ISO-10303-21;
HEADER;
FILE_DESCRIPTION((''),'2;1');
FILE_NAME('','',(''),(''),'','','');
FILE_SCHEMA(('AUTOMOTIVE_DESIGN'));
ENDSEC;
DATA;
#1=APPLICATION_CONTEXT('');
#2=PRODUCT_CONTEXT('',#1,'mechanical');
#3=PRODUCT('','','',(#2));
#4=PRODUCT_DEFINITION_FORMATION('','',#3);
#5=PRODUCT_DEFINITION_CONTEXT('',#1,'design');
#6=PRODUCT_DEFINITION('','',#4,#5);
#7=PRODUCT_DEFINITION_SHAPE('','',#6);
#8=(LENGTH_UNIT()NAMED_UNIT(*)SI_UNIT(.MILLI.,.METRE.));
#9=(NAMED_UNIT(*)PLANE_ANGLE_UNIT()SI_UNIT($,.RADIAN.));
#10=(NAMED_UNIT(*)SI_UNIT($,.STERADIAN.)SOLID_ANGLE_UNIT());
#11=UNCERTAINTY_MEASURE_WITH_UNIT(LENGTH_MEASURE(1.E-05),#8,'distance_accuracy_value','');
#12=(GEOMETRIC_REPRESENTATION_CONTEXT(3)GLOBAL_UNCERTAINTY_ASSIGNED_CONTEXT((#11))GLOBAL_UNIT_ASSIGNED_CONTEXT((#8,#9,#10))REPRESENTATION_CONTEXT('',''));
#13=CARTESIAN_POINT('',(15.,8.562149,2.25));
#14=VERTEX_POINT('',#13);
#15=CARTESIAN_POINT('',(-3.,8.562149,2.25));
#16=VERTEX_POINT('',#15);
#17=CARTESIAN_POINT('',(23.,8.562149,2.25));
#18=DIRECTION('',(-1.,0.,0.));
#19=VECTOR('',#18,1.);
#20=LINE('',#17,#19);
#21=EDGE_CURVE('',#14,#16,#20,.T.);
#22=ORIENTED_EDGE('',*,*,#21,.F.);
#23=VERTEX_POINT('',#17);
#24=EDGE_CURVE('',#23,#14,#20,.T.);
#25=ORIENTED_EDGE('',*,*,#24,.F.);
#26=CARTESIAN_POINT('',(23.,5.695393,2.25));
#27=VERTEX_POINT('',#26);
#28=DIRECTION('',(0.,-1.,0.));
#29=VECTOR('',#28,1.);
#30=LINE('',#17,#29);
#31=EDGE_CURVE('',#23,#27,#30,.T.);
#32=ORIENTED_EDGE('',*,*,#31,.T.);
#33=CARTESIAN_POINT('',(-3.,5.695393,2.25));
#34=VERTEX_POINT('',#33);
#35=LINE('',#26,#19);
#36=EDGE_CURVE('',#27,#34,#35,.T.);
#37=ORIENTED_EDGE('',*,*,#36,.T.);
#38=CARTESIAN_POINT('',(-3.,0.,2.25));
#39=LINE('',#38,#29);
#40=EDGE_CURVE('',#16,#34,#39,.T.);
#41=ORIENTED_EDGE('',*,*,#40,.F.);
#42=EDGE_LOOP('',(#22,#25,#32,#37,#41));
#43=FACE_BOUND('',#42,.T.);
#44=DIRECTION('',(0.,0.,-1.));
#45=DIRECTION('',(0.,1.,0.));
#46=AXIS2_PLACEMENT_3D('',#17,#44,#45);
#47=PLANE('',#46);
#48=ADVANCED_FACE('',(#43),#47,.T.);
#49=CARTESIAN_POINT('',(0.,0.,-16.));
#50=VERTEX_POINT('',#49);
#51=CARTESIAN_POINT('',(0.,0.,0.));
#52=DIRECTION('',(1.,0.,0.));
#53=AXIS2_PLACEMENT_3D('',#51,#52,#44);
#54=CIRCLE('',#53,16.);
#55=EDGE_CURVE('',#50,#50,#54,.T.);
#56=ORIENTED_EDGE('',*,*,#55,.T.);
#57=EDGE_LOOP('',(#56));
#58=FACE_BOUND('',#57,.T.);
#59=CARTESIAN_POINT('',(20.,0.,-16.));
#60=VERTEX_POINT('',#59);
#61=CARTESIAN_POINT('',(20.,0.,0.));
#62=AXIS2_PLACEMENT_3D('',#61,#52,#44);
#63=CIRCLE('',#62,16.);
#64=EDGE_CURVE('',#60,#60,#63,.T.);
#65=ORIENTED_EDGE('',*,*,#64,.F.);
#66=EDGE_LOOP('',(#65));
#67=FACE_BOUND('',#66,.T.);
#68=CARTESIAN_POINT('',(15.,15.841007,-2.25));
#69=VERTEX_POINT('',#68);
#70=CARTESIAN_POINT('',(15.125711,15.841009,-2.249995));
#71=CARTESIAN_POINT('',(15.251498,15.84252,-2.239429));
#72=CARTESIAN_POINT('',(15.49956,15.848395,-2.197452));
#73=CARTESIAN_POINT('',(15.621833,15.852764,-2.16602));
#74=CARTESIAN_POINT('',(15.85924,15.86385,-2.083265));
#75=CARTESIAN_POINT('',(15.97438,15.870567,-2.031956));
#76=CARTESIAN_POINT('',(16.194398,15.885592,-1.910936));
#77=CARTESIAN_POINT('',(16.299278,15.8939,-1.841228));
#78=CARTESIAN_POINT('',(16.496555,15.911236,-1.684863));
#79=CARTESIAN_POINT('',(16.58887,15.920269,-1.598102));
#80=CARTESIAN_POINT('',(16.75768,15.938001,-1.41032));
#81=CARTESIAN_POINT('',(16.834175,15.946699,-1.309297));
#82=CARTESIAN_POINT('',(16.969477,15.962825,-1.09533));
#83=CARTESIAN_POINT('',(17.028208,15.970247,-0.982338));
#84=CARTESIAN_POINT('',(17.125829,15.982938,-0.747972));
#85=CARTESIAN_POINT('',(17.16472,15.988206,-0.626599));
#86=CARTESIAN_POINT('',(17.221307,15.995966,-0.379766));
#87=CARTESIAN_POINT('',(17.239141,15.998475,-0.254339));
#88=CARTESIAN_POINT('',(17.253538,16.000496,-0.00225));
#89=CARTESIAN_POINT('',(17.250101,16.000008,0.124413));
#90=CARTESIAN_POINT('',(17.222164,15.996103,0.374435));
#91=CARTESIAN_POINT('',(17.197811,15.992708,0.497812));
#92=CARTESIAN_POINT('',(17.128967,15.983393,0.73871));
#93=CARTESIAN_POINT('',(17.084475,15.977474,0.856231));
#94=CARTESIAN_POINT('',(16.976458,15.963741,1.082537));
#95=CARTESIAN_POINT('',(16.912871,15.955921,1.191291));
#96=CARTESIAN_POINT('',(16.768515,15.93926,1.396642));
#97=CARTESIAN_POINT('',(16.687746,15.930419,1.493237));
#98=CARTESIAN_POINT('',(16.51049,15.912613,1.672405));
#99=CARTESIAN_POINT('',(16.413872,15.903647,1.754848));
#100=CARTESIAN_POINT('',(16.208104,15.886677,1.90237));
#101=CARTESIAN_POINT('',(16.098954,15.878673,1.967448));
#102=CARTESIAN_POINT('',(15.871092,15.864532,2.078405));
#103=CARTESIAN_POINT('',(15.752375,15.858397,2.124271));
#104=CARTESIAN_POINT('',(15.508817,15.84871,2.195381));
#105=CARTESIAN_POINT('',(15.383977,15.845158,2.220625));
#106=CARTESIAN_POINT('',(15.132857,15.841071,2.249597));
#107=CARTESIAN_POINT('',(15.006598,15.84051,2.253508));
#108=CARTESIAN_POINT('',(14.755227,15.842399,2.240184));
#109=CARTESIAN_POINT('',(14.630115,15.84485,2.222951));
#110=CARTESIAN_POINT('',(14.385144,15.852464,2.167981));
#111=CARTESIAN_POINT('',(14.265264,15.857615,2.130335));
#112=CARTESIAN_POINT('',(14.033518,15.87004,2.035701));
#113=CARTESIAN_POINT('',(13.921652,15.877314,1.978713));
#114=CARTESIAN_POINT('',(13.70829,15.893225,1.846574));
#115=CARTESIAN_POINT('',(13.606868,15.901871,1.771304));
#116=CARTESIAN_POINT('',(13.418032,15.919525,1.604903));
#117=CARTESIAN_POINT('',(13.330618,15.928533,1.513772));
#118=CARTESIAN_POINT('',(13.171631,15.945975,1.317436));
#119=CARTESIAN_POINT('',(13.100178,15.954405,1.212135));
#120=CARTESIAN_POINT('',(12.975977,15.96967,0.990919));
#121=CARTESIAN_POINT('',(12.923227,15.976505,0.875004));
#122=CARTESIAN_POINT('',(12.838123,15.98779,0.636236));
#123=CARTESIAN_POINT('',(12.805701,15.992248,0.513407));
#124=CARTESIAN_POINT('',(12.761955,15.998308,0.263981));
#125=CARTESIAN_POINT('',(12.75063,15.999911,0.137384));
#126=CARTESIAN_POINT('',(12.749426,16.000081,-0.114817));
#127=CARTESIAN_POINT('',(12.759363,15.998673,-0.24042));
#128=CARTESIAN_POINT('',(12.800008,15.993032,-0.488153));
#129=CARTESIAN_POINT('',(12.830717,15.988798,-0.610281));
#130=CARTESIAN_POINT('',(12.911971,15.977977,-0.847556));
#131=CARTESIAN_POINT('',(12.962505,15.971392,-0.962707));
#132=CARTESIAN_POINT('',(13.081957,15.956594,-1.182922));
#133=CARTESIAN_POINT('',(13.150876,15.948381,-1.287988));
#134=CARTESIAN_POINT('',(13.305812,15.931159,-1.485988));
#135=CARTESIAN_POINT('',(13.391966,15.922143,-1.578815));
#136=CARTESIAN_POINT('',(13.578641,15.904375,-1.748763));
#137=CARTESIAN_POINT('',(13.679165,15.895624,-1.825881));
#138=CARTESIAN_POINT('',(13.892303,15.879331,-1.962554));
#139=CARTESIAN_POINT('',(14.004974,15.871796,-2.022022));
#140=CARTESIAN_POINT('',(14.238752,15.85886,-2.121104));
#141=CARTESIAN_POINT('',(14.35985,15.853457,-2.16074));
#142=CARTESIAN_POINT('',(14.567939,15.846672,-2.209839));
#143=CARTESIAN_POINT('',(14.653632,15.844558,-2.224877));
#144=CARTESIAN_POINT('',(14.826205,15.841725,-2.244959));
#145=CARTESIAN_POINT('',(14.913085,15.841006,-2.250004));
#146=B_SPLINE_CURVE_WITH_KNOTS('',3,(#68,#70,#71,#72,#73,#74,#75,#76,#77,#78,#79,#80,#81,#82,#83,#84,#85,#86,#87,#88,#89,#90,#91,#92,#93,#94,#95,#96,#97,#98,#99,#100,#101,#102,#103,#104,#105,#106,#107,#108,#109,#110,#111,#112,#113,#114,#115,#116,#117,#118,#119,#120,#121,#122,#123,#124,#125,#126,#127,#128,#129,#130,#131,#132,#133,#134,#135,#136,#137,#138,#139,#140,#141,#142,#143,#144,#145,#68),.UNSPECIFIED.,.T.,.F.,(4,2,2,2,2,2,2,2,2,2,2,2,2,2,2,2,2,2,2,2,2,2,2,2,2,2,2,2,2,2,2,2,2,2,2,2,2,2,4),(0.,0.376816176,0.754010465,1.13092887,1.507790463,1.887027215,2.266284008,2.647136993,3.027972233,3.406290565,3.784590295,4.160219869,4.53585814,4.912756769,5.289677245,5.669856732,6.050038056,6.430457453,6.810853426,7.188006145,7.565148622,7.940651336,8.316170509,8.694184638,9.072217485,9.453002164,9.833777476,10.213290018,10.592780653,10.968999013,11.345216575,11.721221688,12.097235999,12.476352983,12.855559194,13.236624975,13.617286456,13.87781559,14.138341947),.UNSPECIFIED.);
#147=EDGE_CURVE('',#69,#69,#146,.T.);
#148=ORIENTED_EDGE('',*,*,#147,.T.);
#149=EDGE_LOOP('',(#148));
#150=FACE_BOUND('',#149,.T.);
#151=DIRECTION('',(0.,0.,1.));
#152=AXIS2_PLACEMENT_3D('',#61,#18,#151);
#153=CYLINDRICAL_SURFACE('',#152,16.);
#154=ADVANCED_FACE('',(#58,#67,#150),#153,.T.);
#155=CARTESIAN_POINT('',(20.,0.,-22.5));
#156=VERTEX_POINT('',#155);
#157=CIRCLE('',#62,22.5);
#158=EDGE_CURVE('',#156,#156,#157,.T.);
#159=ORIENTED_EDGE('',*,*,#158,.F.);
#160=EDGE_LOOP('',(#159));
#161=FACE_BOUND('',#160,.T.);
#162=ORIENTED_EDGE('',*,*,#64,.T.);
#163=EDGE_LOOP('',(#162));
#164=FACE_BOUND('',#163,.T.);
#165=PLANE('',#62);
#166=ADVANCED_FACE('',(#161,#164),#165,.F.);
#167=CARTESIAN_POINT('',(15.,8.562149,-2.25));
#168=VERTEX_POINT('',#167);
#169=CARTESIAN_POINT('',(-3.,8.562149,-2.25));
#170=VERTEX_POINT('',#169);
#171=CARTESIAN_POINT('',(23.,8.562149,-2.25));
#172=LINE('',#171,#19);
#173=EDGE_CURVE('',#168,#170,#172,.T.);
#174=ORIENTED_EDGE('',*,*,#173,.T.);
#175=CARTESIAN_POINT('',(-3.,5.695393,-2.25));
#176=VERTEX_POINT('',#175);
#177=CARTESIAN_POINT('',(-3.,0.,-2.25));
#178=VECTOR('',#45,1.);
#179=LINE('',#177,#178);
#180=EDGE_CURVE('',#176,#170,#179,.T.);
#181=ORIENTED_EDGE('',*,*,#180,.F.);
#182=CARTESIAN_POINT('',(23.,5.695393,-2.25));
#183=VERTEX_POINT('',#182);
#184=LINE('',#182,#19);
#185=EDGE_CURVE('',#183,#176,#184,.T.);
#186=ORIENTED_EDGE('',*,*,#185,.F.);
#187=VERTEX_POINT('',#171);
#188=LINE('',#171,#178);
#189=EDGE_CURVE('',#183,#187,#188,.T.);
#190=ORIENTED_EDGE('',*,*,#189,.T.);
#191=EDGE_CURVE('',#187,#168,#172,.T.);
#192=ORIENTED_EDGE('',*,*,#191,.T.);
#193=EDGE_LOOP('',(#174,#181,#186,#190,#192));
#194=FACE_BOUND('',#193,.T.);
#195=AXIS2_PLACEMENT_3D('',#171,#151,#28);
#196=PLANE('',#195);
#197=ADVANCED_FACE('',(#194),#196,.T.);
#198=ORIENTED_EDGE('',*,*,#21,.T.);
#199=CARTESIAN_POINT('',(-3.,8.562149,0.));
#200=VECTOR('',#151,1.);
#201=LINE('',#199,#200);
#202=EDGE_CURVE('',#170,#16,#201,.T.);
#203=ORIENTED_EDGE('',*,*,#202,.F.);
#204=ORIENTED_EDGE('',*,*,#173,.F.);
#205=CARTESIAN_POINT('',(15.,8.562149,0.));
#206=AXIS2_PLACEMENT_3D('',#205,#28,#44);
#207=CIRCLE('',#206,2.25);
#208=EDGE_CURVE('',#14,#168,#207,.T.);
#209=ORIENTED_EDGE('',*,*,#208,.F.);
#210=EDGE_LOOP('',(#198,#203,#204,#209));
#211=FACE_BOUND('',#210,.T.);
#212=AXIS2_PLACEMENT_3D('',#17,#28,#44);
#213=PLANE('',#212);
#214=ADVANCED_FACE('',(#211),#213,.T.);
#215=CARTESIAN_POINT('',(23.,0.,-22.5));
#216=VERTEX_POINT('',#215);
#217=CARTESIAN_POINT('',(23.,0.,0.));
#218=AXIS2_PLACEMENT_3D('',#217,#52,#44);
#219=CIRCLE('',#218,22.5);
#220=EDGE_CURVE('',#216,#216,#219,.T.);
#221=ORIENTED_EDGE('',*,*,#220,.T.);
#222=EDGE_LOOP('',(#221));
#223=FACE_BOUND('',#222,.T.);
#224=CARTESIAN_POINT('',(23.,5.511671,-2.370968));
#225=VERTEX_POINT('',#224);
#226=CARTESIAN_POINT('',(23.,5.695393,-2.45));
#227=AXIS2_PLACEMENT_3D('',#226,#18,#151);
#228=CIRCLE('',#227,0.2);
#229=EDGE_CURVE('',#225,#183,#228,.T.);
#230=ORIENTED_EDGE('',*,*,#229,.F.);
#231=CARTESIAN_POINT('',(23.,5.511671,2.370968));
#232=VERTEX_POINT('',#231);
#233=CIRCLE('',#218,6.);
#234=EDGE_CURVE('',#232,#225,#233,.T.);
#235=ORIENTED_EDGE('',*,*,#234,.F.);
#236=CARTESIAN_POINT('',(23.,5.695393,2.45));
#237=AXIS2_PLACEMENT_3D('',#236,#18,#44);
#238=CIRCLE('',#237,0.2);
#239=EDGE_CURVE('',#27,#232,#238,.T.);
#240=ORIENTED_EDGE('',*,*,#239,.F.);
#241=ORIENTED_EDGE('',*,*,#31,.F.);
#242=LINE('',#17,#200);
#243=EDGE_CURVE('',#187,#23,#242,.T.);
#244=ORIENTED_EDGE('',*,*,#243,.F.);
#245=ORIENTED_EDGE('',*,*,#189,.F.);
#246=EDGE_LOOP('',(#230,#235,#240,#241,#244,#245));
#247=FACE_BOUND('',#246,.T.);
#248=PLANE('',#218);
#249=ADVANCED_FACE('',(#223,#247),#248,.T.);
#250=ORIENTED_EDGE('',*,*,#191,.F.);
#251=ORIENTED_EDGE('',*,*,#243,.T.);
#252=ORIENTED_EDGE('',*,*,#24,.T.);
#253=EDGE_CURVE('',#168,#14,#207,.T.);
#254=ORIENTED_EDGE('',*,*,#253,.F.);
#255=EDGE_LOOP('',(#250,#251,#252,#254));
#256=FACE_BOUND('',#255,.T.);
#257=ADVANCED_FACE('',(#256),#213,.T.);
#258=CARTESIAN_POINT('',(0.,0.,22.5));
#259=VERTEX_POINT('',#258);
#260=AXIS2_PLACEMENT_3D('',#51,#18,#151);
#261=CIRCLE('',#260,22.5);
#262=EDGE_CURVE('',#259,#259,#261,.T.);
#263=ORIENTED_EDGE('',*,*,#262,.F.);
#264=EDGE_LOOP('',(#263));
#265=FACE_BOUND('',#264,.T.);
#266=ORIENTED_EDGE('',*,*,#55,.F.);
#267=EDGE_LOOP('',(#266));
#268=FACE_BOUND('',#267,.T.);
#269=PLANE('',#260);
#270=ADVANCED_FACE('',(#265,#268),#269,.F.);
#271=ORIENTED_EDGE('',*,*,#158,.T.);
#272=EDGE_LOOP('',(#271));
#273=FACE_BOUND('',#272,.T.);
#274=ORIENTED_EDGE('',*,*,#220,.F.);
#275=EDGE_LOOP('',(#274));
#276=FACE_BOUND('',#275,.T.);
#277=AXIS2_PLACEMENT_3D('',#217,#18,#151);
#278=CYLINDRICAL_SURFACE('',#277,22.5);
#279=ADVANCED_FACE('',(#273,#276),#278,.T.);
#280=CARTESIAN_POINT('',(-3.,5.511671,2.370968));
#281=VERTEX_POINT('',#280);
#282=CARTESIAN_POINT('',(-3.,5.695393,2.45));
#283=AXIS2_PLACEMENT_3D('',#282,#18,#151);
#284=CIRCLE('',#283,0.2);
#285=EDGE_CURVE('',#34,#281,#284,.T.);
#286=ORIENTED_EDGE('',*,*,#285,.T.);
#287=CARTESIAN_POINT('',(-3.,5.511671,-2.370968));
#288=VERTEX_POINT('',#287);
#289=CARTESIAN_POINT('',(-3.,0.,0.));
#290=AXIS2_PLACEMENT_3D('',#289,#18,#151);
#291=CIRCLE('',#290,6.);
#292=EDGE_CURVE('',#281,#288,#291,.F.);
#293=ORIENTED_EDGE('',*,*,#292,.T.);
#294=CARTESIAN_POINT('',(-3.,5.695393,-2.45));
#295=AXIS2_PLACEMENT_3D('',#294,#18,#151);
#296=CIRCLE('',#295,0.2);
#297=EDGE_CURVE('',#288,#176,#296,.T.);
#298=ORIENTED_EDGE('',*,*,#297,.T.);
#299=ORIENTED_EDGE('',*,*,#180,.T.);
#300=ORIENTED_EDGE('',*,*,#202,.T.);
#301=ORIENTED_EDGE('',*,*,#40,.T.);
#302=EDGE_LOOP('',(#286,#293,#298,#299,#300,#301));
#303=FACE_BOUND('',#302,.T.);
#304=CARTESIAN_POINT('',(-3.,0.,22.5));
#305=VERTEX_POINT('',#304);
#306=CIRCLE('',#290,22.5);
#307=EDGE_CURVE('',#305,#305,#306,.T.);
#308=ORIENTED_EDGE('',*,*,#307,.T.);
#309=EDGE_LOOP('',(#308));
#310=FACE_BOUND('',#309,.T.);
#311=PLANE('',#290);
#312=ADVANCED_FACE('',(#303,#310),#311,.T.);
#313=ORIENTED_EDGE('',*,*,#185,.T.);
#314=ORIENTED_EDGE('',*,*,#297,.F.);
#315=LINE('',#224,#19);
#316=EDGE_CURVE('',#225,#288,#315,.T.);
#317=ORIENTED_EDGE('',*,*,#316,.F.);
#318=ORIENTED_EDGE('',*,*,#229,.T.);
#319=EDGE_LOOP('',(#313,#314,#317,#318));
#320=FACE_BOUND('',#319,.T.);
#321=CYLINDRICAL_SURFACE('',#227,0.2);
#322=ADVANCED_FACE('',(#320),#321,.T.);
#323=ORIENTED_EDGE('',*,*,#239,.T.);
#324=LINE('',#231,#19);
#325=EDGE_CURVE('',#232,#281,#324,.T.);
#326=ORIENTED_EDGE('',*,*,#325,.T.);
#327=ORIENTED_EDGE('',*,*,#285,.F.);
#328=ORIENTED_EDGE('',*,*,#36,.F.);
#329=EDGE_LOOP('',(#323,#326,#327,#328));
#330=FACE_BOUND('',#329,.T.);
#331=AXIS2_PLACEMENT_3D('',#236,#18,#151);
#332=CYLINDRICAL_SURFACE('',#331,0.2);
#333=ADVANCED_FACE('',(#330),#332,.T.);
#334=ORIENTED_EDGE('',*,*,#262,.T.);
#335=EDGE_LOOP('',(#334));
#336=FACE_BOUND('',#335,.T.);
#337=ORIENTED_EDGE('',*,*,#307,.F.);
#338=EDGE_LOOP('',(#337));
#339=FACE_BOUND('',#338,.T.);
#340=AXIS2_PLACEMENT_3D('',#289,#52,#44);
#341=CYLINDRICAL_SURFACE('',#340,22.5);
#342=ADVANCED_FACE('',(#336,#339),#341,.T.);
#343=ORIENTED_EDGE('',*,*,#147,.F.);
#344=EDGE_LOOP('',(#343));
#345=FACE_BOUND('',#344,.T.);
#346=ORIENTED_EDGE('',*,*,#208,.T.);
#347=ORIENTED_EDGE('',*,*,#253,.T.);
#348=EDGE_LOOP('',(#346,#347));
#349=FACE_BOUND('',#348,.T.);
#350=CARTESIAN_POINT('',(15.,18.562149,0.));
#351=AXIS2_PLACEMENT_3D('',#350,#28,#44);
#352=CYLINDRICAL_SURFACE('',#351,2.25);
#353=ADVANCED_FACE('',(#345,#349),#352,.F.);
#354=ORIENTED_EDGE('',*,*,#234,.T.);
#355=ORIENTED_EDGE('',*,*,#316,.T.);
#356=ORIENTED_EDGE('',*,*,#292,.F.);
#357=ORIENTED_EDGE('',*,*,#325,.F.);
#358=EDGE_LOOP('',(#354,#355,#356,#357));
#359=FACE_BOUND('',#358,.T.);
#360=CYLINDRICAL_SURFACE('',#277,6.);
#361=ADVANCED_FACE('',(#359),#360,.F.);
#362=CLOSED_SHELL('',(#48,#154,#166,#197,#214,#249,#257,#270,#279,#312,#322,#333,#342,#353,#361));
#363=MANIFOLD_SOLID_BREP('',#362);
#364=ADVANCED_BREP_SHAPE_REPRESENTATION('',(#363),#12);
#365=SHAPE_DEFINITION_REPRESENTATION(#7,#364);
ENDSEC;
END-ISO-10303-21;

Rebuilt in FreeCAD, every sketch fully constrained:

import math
import FreeCAD as App
import Part
import Sketcher
Q = App.Units.Quantity

doc = App.newDocument("Part")
body = doc.addObject("PartDesign::Body", "Body")

sketch1 = body.newObject("Sketcher::SketchObject", "Sketch")
sketch1.AttachmentSupport = (doc.getObject("YZ_Plane"), [""])
sketch1.MapMode = "FlatFace"
sketch1.addGeometry(Part.Circle(App.Vector(0, 0, 0), App.Vector(0, 0, 1), 16), False)
sketch1.addConstraint(Sketcher.Constraint("Coincident", 0, 3, -1, 1))
sketch1.addConstraint(Sketcher.Constraint("Diameter", 0, Q("32 mm")))
pad1 = body.newObject("PartDesign::Pad", "Pad")
pad1.Profile = sketch1
pad1.Length = 20

sketch2 = body.newObject("Sketcher::SketchObject", "Sketch001")
sketch2.AttachmentSupport = (doc.getObject("YZ_Plane"), [""])
sketch2.MapMode = "FlatFace"
sketch2.AttachmentOffset = App.Placement(App.Vector(0, 0, 20), App.Rotation())
sketch2.addGeometry(Part.Circle(App.Vector(0, 0, 0), App.Vector(0, 0, 1), 22), False)
sketch2.addConstraint(Sketcher.Constraint("Coincident", 0, 3, -1, 1))
sketch2.addConstraint(Sketcher.Constraint("Diameter", 0, Q("45 mm")))
pad2 = body.newObject("PartDesign::Pad", "Pad001")
pad2.Profile = sketch2
pad2.Length = 3

sketch3 = body.newObject("Sketcher::SketchObject", "Sketch002")
sketch3.AttachmentSupport = (doc.getObject("YZ_Plane"), [""])
sketch3.MapMode = "FlatFace"
sketch3.addGeometry(Part.Circle(App.Vector(0, 0, 0), App.Vector(0, 0, 1), 22), False)
sketch3.addConstraint(Sketcher.Constraint("Coincident", 0, 3, -1, 1))
sketch3.addConstraint(Sketcher.Constraint("Diameter", 0, Q("45 mm")))
pad3 = body.newObject("PartDesign::Pad", "Pad002")
pad3.Profile = sketch3
pad3.Length = 3
pad3.Reversed = True

sketch4 = body.newObject("Sketcher::SketchObject", "Sketch003")
sketch4.AttachmentSupport = (doc.getObject("YZ_Plane"), [""])
sketch4.MapMode = "FlatFace"
sketch4.AttachmentOffset = App.Placement(App.Vector(0, 0, 20), App.Rotation())
sketch4.addGeometry(Part.LineSegment(App.Vector(8.56, -2.25, 0), App.Vector(8.56, 2.25, 0)), False)
sketch4.addGeometry(Part.LineSegment(App.Vector(8.56, 2.25, 0), App.Vector(5.7, 2.25, 0)), False)
sketch4.addGeometry(Part.ArcOfCircle(Part.Circle(App.Vector(5.7, 2.45, 0), App.Vector(0, 0, 1), 0.2), math.radians(-157), math.radians(-90)), False)
sketch4.addGeometry(Part.ArcOfCircle(Part.Circle(App.Vector(0, 0, 0), App.Vector(0, 0, 1), 6), math.radians(23), math.radians(337)), False)
sketch4.addGeometry(Part.ArcOfCircle(Part.Circle(App.Vector(5.7, -2.45, 0), App.Vector(0, 0, 1), 0.2), math.radians(90), math.radians(157)), False)
sketch4.addGeometry(Part.LineSegment(App.Vector(5.7, -2.25, 0), App.Vector(8.56, -2.25, 0)), False)
sketch4.addConstraint(Sketcher.Constraint("Coincident", 0, 2, 1, 1))
sketch4.addConstraint(Sketcher.Constraint("Tangent", 1, 2, 2, 2))
sketch4.addConstraint(Sketcher.Constraint("Tangent", 2, 1, 3, 1))
sketch4.addConstraint(Sketcher.Constraint("Tangent", 3, 2, 4, 2))
sketch4.addConstraint(Sketcher.Constraint("Tangent", 4, 1, 5, 1))
sketch4.addConstraint(Sketcher.Constraint("Coincident", 5, 2, 0, 1))
sketch4.addConstraint(Sketcher.Constraint("Vertical", 0))
sketch4.addConstraint(Sketcher.Constraint("Horizontal", 1))
sketch4.addConstraint(Sketcher.Constraint("Horizontal", 5))
sketch4.addConstraint(Sketcher.Constraint("Coincident", 3, 3, -1, 1))
sketch4.addConstraint(Sketcher.Constraint("Equal", 2, 4))
sketch4.addConstraint(Sketcher.Constraint("Vertical", 2, 3, 4, 3))
sketch4.addConstraint(Sketcher.Constraint("Radius", 3, Q("6 mm")))
sketch4.addConstraint(Sketcher.Constraint("Radius", 2, Q("0.2 mm")))
sketch4.addConstraint(Sketcher.Constraint("DistanceY", 0, 1, 0, 2, Q("4.5 mm")))
sketch4.addConstraint(Sketcher.Constraint("DistanceX", 1, 2, 1, 1, Q("2.866756 mm")))
pocket1 = body.newObject("PartDesign::Pocket", "Pocket")
pocket1.Profile = sketch4
pocket1.Type = "ThroughAll"
pocket1.Midplane = True

sketch5 = body.newObject("Sketcher::SketchObject", "Sketch004")
sketch5.AttachmentSupport = (doc.getObject("XZ_Plane"), [""])
sketch5.MapMode = "FlatFace"
sketch5.AttachmentOffset = App.Placement(App.Vector(0, 0, -8.562149), App.Rotation())
sketch5.addGeometry(Part.Circle(App.Vector(15, 0, 0), App.Vector(0, 0, 1), 2.2), False)
sketch5.addConstraint(Sketcher.Constraint("PointOnObject", 0, 3, -1))
sketch5.addConstraint(Sketcher.Constraint("Diameter", 0, Q("4.5 mm")))
sketch5.addConstraint(Sketcher.Constraint("DistanceX", -1, 1, 0, 3, Q("15 mm")))
pocket2 = body.newObject("PartDesign::Pocket", "Pocket001")
pocket2.Profile = sketch5
pocket2.Length = 10

doc.recompute()
